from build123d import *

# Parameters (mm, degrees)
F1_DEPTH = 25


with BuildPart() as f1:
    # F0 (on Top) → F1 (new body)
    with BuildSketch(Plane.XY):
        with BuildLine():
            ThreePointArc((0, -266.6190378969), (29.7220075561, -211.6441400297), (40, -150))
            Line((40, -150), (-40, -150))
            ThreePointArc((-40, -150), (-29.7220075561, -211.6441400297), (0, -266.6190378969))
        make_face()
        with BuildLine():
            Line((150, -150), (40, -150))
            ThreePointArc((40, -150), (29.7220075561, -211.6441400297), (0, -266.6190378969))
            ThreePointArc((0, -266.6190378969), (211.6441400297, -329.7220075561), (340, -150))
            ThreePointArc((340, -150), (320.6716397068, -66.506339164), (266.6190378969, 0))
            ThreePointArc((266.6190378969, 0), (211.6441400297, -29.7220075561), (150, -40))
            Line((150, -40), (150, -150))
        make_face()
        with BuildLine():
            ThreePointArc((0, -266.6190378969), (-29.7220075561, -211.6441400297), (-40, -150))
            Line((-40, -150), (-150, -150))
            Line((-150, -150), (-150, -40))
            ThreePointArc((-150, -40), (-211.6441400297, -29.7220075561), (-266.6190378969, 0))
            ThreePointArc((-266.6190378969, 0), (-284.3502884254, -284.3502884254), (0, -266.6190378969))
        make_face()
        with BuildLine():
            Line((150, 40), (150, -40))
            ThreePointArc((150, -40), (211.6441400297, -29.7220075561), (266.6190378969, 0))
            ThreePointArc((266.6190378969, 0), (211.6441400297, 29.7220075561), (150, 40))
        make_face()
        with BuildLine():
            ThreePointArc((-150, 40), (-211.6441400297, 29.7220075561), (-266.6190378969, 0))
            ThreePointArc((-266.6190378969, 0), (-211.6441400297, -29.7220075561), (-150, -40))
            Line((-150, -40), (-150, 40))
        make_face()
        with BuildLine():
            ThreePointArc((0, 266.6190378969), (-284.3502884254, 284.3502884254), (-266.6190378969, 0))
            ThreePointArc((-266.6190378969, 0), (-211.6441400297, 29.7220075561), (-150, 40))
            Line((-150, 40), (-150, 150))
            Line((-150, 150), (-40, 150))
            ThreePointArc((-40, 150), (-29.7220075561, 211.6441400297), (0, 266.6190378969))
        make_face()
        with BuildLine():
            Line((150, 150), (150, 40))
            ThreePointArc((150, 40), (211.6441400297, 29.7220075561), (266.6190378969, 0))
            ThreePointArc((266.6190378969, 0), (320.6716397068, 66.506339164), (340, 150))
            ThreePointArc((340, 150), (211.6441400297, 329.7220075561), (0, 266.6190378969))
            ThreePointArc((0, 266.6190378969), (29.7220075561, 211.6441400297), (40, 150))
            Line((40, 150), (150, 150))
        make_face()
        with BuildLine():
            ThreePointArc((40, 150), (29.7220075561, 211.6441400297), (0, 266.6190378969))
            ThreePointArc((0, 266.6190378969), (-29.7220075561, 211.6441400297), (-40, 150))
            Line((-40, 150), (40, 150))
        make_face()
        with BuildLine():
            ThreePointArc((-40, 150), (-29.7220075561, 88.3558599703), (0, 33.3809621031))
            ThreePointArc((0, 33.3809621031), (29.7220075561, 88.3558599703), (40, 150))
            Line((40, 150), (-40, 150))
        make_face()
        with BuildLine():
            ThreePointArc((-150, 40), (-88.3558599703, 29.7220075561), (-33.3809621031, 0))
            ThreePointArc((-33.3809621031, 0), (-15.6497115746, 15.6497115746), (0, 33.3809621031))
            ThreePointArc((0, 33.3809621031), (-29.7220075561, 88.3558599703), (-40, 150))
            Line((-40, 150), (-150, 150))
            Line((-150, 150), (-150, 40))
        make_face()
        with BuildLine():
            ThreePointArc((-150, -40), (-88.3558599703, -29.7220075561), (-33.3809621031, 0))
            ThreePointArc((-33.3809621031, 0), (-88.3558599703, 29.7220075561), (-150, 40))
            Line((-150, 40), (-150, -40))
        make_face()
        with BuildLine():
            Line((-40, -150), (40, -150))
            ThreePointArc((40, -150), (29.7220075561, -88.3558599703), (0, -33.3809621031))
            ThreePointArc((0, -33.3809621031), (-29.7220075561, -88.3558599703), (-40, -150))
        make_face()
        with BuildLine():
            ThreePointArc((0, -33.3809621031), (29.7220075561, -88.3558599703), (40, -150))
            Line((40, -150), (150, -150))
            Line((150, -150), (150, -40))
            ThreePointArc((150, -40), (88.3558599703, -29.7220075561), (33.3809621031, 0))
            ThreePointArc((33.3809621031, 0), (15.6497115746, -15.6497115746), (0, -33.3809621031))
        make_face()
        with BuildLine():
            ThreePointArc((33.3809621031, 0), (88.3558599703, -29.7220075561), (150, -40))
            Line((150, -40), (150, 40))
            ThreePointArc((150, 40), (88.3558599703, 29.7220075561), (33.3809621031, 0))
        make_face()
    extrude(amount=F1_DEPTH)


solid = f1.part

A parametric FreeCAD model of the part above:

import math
import FreeCAD as App
import Part
import Sketcher

V = App.Vector

doc = App.newDocument("Part")
body = doc.addObject("PartDesign::Body", "Body")

# Sketch on XY plane
sketch1 = body.newObject("Sketcher::SketchObject", "Sketch")
sketch1.AttachmentSupport = (doc.getObject("XY_Plane"), [""])
sketch1.MapMode = "FlatFace"
sketch1.addGeometry([
    Part.ArcOfCircle(Part.Circle(V(150, 150, 0), V(0, 0, 1), 190), math.radians(-52), math.radians(142)),  # 0
    Part.ArcOfCircle(Part.Circle(V(-150, 150, 0), V(0, 0, 1), 190), math.radians(38), math.radians(232)),  # 1
    Part.ArcOfCircle(Part.Circle(V(-150, -150, 0), V(0, 0, 1), 190), math.radians(128), math.radians(322)),  # 2
    Part.ArcOfCircle(Part.Circle(V(150, -150, 0), V(0, 0, 1), 190), math.radians(-142), math.radians(52)),  # 3
    Part.ArcOfCircle(Part.Circle(V(-150, 150, 0), V(0, 0, 1), 190), math.radians(-38), math.radians(0)),  # 4
    Part.LineSegment(V(40, 150, 0), V(150, 150, 0)),  # 5
    Part.LineSegment(V(150, 150, 0), V(150, 40, 0)),  # 6
    Part.ArcOfCircle(Part.Circle(V(150, -150, 0), V(0, 0, 1), 190), math.radians(90), math.radians(128)),  # 7
    Part.ArcOfCircle(Part.Circle(V(150, -150, 0), V(0, 0, 1), 190), math.radians(127.86), math.radians(142.14)),  # 8
    Part.ArcOfCircle(Part.Circle(V(150, -150, 0), V(0, 0, 1), 190), math.radians(142), math.radians(180)),  # 9
    Part.LineSegment(V(-40, -150, 0), V(-150, -150, 0)),  # 10
    Part.LineSegment(V(-150, -150, 0), V(-150, -40, 0)),  # 11
    Part.ArcOfCircle(Part.Circle(V(-150, 150, 0), V(0, 0, 1), 190), math.radians(-90), math.radians(-52)),  # 12
    Part.ArcOfCircle(Part.Circle(V(-150, 150, 0), V(0, 0, 1), 190), math.radians(-52.14), math.radians(-37.86)),  # 13
], False)
sketch1.addConstraint([
    Sketcher.Constraint("Coincident", 0, 2, 1, 1),
    Sketcher.Constraint("Coincident", 1, 2, 2, 1),
    Sketcher.Constraint("Coincident", 2, 2, 3, 1),
    Sketcher.Constraint("Coincident", 3, 2, 0, 1),
    Sketcher.Constraint("Coincident", 4, 2, 5, 1),
    Sketcher.Constraint("Coincident", 5, 2, 6, 1),
    Sketcher.Constraint("Coincident", 6, 2, 7, 1),
    Sketcher.Constraint("Tangent", 7, 2, 8, 1),
    Sketcher.Constraint("Tangent", 8, 2, 9, 1),
    Sketcher.Constraint("Coincident", 9, 2, 10, 1),
    Sketcher.Constraint("Coincident", 10, 2, 11, 1),
    Sketcher.Constraint("Coincident", 11, 2, 12, 1),
    Sketcher.Constraint("Tangent", 12, 2, 13, 1),
    Sketcher.Constraint("Tangent", 13, 2, 4, 1),
    Sketcher.Constraint("Horizontal", 5),
    Sketcher.Constraint("Vertical", 6),
    Sketcher.Constraint("Horizontal", 10),
    Sketcher.Constraint("Vertical", 11),
    Sketcher.Constraint("Coincident", 4, 3, 1, 3),
    Sketcher.Constraint("Coincident", 7, 3, 3, 3),
    Sketcher.Constraint("Coincident", 9, 3, 3, 3),
    Sketcher.Constraint("Coincident", 12, 3, 1, 3),
    Sketcher.Constraint("Coincident", 5, 2, 0, 3),
    Sketcher.Constraint("Coincident", 10, 2, 2, 3),
    Sketcher.Constraint("Equal", 0, 1),
    Sketcher.Constraint("Equal", 1, 2),
    Sketcher.Constraint("Equal", 2, 3),
    Sketcher.Constraint("Equal", 3, 4),
    Sketcher.Constraint("Equal", 4, 7),
    Sketcher.Constraint("Symmetric", 0, 3, 2, 3, -1, 1),
    Sketcher.Constraint("Symmetric", 1, 3, 3, 3, -1, 1),
    Sketcher.Constraint("Symmetric", 0, 3, 1, 3, -2),
    Sketcher.Constraint("Symmetric", 7, 2, 12, 2, -2),
    Sketcher.Constraint("Symmetric", 8, 2, 13, 2, -1),
    Sketcher.Constraint("Equal", 10, 6),
    Sketcher.Constraint("Radius", 0, 190.0),
    Sketcher.Constraint("DistanceX", 5, 1, 5, 2, 110.0),
])
pad1 = body.newObject("PartDesign::Pad", "Pad")
pad1.Profile = sketch1
pad1.Length = 25

doc.recompute()
